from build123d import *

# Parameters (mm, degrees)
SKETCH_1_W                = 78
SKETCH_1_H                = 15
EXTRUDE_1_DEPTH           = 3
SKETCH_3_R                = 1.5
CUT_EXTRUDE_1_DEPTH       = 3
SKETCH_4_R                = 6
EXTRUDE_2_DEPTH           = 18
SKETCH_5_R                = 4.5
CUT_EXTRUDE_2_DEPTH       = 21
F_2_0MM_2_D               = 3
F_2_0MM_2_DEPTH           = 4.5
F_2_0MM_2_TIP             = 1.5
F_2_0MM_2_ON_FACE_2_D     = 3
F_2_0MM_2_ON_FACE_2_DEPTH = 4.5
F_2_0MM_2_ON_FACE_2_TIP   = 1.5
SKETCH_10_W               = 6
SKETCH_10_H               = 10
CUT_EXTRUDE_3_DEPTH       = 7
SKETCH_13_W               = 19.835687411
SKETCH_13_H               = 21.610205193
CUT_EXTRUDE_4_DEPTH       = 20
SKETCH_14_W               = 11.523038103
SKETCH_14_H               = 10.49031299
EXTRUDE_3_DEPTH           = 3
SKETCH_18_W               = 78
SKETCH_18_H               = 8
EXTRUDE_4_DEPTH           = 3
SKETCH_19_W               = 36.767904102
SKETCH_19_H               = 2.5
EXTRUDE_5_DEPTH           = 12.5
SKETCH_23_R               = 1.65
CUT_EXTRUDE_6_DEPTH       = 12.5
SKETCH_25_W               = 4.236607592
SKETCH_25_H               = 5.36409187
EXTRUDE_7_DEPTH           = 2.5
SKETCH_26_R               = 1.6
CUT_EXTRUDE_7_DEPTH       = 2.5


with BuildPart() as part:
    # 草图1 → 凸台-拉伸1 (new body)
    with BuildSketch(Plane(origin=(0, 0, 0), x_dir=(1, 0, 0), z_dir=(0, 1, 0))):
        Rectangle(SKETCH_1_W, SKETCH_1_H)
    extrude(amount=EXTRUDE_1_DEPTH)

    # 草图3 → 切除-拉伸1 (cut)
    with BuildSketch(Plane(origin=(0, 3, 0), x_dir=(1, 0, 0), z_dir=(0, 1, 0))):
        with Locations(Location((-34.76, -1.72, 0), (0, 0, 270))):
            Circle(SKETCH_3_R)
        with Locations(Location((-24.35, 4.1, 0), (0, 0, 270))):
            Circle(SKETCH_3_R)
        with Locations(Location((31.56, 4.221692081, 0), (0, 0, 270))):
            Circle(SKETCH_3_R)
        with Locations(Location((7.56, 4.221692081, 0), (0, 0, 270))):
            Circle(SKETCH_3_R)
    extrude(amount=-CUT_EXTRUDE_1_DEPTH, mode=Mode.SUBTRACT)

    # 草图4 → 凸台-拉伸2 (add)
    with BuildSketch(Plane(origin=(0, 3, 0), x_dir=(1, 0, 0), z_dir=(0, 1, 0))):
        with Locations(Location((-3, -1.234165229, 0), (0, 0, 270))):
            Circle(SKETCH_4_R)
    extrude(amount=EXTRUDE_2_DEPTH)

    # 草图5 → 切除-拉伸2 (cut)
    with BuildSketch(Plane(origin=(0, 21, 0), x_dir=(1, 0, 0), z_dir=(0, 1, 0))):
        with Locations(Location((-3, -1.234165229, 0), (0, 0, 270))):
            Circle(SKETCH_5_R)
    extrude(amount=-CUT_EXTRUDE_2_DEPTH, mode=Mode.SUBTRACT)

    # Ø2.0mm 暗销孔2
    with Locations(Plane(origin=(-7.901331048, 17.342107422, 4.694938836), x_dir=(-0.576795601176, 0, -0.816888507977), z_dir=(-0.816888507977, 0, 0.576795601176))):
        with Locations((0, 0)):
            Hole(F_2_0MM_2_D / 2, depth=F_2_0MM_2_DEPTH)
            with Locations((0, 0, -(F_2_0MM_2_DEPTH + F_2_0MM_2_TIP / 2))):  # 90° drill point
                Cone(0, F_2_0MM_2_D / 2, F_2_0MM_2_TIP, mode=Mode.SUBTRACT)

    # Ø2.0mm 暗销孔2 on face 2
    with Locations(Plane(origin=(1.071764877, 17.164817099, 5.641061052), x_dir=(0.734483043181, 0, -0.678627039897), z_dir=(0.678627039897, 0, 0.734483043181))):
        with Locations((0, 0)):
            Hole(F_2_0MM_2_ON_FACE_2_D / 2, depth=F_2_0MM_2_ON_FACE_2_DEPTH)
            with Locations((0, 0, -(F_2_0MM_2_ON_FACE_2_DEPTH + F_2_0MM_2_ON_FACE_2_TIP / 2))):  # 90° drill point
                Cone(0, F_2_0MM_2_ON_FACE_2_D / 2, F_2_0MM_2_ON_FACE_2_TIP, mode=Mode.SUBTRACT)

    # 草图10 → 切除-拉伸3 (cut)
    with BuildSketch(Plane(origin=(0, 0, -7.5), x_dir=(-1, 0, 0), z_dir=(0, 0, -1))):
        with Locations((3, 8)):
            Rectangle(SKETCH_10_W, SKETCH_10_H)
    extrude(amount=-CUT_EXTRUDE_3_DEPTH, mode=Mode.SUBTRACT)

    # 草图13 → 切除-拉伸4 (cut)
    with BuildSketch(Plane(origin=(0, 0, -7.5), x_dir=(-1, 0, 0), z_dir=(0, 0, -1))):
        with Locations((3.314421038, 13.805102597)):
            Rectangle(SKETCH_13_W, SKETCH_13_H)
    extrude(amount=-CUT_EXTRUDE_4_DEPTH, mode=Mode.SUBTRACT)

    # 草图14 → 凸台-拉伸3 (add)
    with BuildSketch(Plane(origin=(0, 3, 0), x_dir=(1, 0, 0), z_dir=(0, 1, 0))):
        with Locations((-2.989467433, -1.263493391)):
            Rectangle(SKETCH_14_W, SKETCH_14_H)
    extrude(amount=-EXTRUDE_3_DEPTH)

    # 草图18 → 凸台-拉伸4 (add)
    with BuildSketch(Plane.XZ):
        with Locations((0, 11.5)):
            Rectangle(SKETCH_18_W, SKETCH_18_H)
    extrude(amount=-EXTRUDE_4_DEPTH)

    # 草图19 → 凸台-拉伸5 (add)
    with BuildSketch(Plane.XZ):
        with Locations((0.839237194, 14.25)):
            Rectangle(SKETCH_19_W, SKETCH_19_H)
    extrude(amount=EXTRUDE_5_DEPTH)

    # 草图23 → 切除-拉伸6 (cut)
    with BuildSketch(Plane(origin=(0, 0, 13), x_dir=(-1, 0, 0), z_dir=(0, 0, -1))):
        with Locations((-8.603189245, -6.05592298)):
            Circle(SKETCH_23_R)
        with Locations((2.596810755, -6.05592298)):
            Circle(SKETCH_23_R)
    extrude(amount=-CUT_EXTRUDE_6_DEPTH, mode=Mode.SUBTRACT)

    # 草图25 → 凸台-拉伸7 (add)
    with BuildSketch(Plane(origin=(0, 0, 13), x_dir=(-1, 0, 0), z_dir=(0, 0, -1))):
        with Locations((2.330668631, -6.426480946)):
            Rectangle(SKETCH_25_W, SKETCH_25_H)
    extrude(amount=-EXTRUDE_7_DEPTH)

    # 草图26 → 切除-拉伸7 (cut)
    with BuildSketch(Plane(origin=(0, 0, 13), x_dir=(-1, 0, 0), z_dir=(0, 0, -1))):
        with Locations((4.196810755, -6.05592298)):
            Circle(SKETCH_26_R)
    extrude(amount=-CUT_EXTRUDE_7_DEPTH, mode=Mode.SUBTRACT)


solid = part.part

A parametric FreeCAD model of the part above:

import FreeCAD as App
import Part
import Sketcher

V = App.Vector


def add_polygon(sketch, points):
    """Adds a closed chain of lines whose ends are joined by coincident constraints."""
    first, n = sketch.GeometryCount, len(points)
    for a, b in zip(points, points[1:] + points[:1]):
        sketch.addGeometry(Part.LineSegment(App.Vector(*a, 0), App.Vector(*b, 0)), False)
    for i in range(n):
        sketch.addConstraint(Sketcher.Constraint("Coincident", first + i, 2, first + (i + 1) % n, 1))

doc = App.newDocument("Part")
body = doc.addObject("PartDesign::Body", "Body")

# Sketch on XZ plane
sketch1 = doc.addObject("Sketcher::SketchObject", "Sketch")
body.addObject(sketch1)
sketch1.AttachmentSupport = (doc.XZ_Plane, [""])
sketch1.MapMode = "FlatFace"
add_polygon(sketch1, [(-39, -7.5), (-39, 7.5), (39, 7.5), (39, -7.5)])  # lines 0-3
sketch1.addConstraint([
    Sketcher.Constraint("Vertical", 0),
    Sketcher.Constraint("Horizontal", 1),
    Sketcher.Constraint("Vertical", 2),
    Sketcher.Constraint("Horizontal", 3),
    Sketcher.Constraint("Symmetric", 0, 2, 2, 2, -1, 1),
    Sketcher.Constraint("DistanceX", 1, 1, 1, 2, 78.0),
    Sketcher.Constraint("DistanceY", 0, 1, 0, 2, 15.0),
])
pad1 = doc.addObject("PartDesign::Pad", "Pad")
body.addObject(pad1)
pad1.Profile = sketch1
pad1.Length = 3
pad1.Reversed = True

# Sketch on XZ plane
sketch2 = doc.addObject("Sketcher::SketchObject", "Sketch001")
body.addObject(sketch2)
sketch2.AttachmentSupport = (doc.XZ_Plane, [""])
sketch2.MapMode = "FlatFace"
sketch2.AttachmentOffset = App.Placement(V(0, 0, -3), App.Rotation())
sketch2.addGeometry([
    Part.Circle(V(-34.76, 1.72, 0), V(0, 0, 1), 1.5),
    Part.Circle(V(-24.35, -4.1, 0), V(0, 0, 1), 1.5),
    Part.Circle(V(31.56, -4.221692, 0), V(0, 0, 1), 1.5),
    Part.Circle(V(7.56, -4.221692, 0), V(0, 0, 1), 1.5),
], False)
sketch2.addConstraint([
    Sketcher.Constraint("Equal", 0, 1),
    Sketcher.Constraint("Equal", 1, 2),
    Sketcher.Constraint("Equal", 2, 3),
    Sketcher.Constraint("Horizontal", 2, 3, 3, 3),
    Sketcher.Constraint("Diameter", 0, 3.0),
    Sketcher.Constraint("DistanceX", 3, 3, 2, 3, 24.0),
    Sketcher.Constraint("DistanceY", 1, 3, -1, 1, 4.1),
    Sketcher.Constraint("DistanceX", 0, 3, -1, 1, 34.76),
    Sketcher.Constraint("DistanceY", -1, 1, 0, 3, 1.72),
    Sketcher.Constraint("DistanceX", 1, 3, -1, 1, 24.35),
    Sketcher.Constraint("DistanceX", -1, 1, 2, 3, 31.56),
    Sketcher.Constraint("DistanceY", 2, 3, -1, 1, 4.221692),
])
pocket1 = doc.addObject("PartDesign::Pocket", "Pocket")
body.addObject(pocket1)
pocket1.Profile = sketch2
pocket1.Length = 3
pocket1.Reversed = True

# Sketch on XZ plane
sketch3 = doc.addObject("Sketcher::SketchObject", "Sketch002")
body.addObject(sketch3)
sketch3.AttachmentSupport = (doc.XZ_Plane, [""])
sketch3.MapMode = "FlatFace"
sketch3.AttachmentOffset = App.Placement(V(0, 0, -3), App.Rotation())
sketch3.addGeometry(Part.Circle(V(-3, 1.234165, 0), V(0, 0, 1), 6), False)
sketch3.addConstraint([
    Sketcher.Constraint("Diameter", 0, 12.0),
    Sketcher.Constraint("DistanceX", 0, 3, -1, 1, 3.0),
    Sketcher.Constraint("DistanceY", -1, 1, 0, 3, 1.234165),
])
pad2 = doc.addObject("PartDesign::Pad", "Pad001")
body.addObject(pad2)
pad2.Profile = sketch3
pad2.Length = 18
pad2.Reversed = True

# Sketch on XZ plane
sketch4 = doc.addObject("Sketcher::SketchObject", "Sketch003")
body.addObject(sketch4)
sketch4.AttachmentSupport = (doc.XZ_Plane, [""])
sketch4.MapMode = "FlatFace"
sketch4.AttachmentOffset = App.Placement(V(0, 0, -21), App.Rotation())
sketch4.addGeometry(Part.Circle(V(-3, 1.234165, 0), V(0, 0, 1), 4.5), False)
sketch4.addConstraint([
    Sketcher.Constraint("Diameter", 0, 9.0),
    Sketcher.Constraint("DistanceX", 0, 3, -1, 1, 3.0),
    Sketcher.Constraint("DistanceY", -1, 1, 0, 3, 1.234165),
])
pocket2 = doc.addObject("PartDesign::Pocket", "Pocket001")
body.addObject(pocket2)
pocket2.Profile = sketch4
pocket2.Length = 21
pocket2.Reversed = True

# Sketch on an angled plane
sketch5 = doc.addObject("Sketcher::SketchObject", "Sketch004")
body.addObject(sketch5)
sketch5.Placement = App.Placement(V(-7.484763, 0, 5.284905), App.Rotation(V(-0.576795601, 0, -0.816888508), V(0, -1, 0), V(-0.816888508, 0, 0.576795601), "ZXY"))
sketch5.addGeometry(Part.Circle(V(0.722211, -17.342107, 0), V(0, 0, 1), 1.5), False)
sketch5.addConstraint([
    Sketcher.Constraint("Diameter", 0, 3.0),
    Sketcher.Constraint("DistanceX", -1, 1, 0, 3, 0.722211),
    Sketcher.Constraint("DistanceY", 0, 3, -1, 1, 17.342107),
])
doc.recompute()
hole = doc.addObject("PartDesign::Hole", "Hole")
body.addObject(hole)
hole.Profile = sketch5
hole.ThreadType = "None"
hole.Diameter = 3
hole.DepthType = "Dimension"
hole.Depth = 4.5
hole.DrillPoint = "Angled"
hole.DrillPointAngle = 90

# Sketch on an angled plane
sketch6 = doc.addObject("Sketcher::SketchObject", "Sketch005")
body.addObject(sketch6)
sketch6.Placement = App.Placement(V(3.305316, 0, 3.577367), App.Rotation(V(0.734483043, 0, -0.67862704), V(0, 1, 0), V(0.67862704, 0, 0.734483043), "ZXY"))
sketch6.addGeometry(Part.Circle(V(-3.040983, 17.164817, 0), V(0, 0, 1), 1.5), False)
sketch6.addConstraint([
    Sketcher.Constraint("Diameter", 0, 3.0),
    Sketcher.Constraint("DistanceX", 0, 3, -1, 1, 3.040983),
    Sketcher.Constraint("DistanceY", -1, 1, 0, 3, 17.164817),
])
doc.recompute()
hole2 = doc.addObject("PartDesign::Hole", "Hole001")
body.addObject(hole2)
hole2.Profile = sketch6
hole2.ThreadType = "None"
hole2.Diameter = 3
hole2.DepthType = "Dimension"
hole2.Depth = 4.5
hole2.DrillPoint = "Angled"
hole2.DrillPointAngle = 90

# Sketch on XY plane
sketch7 = doc.addObject("Sketcher::SketchObject", "Sketch006")
body.addObject(sketch7)
sketch7.AttachmentSupport = (doc.XY_Plane, [""])
sketch7.MapMode = "FlatFace"
sketch7.AttachmentOffset = App.Placement(V(0, 0, -7.5), App.Rotation())
add_polygon(sketch7, [(0, 13), (0, 3), (-6, 3), (-6, 13)])  # lines 0-3
sketch7.addConstraint([
    Sketcher.Constraint("Vertical", 0),
    Sketcher.Constraint("Horizontal", 1),
    Sketcher.Constraint("Vertical", 2),
    Sketcher.Constraint("Horizontal", 3),
    Sketcher.Constraint("PointOnObject", 0, 2, -2),
    Sketcher.Constraint("DistanceX", 1, 2, 1, 1, 6.0),
    Sketcher.Constraint("DistanceY", 0, 2, 0, 1, 10.0),
    Sketcher.Constraint("DistanceY", -1, 1, 0, 2, 3.0),
])
pocket3 = doc.addObject("PartDesign::Pocket", "Pocket002")
body.addObject(pocket3)
pocket3.Profile = sketch7
pocket3.Length = 7
pocket3.Reversed = True

# Sketch on XY plane
sketch8 = doc.addObject("Sketcher::SketchObject", "Sketch007")
body.addObject(sketch8)
sketch8.AttachmentSupport = (doc.XY_Plane, [""])
sketch8.MapMode = "FlatFace"
sketch8.AttachmentOffset = App.Placement(V(0, 0, -7.5), App.Rotation())
add_polygon(sketch8, [(6.603423, 24.610205), (6.603423, 3), (-13.232265, 3), (-13.232265, 24.610205)])  # lines 0-3
sketch8.addConstraint([
    Sketcher.Constraint("Vertical", 0),
    Sketcher.Constraint("Horizontal", 1),
    Sketcher.Constraint("Vertical", 2),
    Sketcher.Constraint("Horizontal", 3),
    Sketcher.Constraint("DistanceY", -1, 1, 0, 2, 3.0),
    Sketcher.Constraint("DistanceX", 1, 2, 1, 1, 19.835687),
    Sketcher.Constraint("DistanceY", 0, 2, 0, 1, 21.610205),
    Sketcher.Constraint("DistanceX", -1, 1, 0, 2, 6.603423),
])
pocket4 = doc.addObject("PartDesign::Pocket", "Pocket003")
body.addObject(pocket4)
pocket4.Profile = sketch8
pocket4.Length = 20
pocket4.Reversed = True

# Sketch on XZ plane
sketch9 = doc.addObject("Sketcher::SketchObject", "Sketch008")
body.addObject(sketch9)
sketch9.AttachmentSupport = (doc.XZ_Plane, [""])
sketch9.MapMode = "FlatFace"
sketch9.AttachmentOffset = App.Placement(V(0, 0, -3), App.Rotation())
add_polygon(sketch9, [(-8.750986, -3.981663), (-8.750986, 6.50865), (2.772052, 6.50865), (2.772052, -3.981663)])  # lines 0-3
sketch9.addConstraint([
    Sketcher.Constraint("Vertical", 0),
    Sketcher.Constraint("Horizontal", 1),
    Sketcher.Constraint("Vertical", 2),
    Sketcher.Constraint("Horizontal", 3),
    Sketcher.Constraint("DistanceX", 1, 1, 1, 2, 11.523038),
    Sketcher.Constraint("DistanceY", 0, 1, 0, 2, 10.490313),
    Sketcher.Constraint("DistanceY", -1, 1, 0, 2, 6.50865),
    Sketcher.Constraint("DistanceX", -1, 1, 1, 2, 2.772052),
])
pad3 = doc.addObject("PartDesign::Pad", "Pad002")
body.addObject(pad3)
pad3.Profile = sketch9
pad3.Length = 3

# Sketch on XZ plane
sketch10 = doc.addObject("Sketcher::SketchObject", "Sketch009")
body.addObject(sketch10)
sketch10.AttachmentSupport = (doc.XZ_Plane, [""])
sketch10.MapMode = "FlatFace"
add_polygon(sketch10, [(-39, 15.5), (-39, 7.5), (39, 7.5), (39, 15.5)])  # lines 0-3
sketch10.addConstraint([
    Sketcher.Constraint("Vertical", 0),
    Sketcher.Constraint("Horizontal", 1),
    Sketcher.Constraint("Vertical", 2),
    Sketcher.Constraint("Horizontal", 3),
    Sketcher.Constraint("DistanceX", 1, 1, 1, 2, 78.0),
    Sketcher.Constraint("DistanceY", 0, 2, 0, 1, 8.0),
    Sketcher.Constraint("DistanceX", 0, 2, -1, 1, 39.0),
    Sketcher.Constraint("DistanceY", -1, 1, 0, 2, 7.5),
])
pad4 = doc.addObject("PartDesign::Pad", "Pad003")
body.addObject(pad4)
pad4.Profile = sketch10
pad4.Length = 3
pad4.Reversed = True

# Sketch on XZ plane
sketch11 = doc.addObject("Sketcher::SketchObject", "Sketch010")
body.addObject(sketch11)
sketch11.AttachmentSupport = (doc.XZ_Plane, [""])
sketch11.MapMode = "FlatFace"
add_polygon(sketch11, [(-17.544715, 15.5), (-17.544715, 13), (19.223189, 13), (19.223189, 15.5)])  # lines 0-3
sketch11.addConstraint([
    Sketcher.Constraint("Vertical", 0),
    Sketcher.Constraint("Horizontal", 1),
    Sketcher.Constraint("Vertical", 2),
    Sketcher.Constraint("Horizontal", 3),
    Sketcher.Constraint("DistanceY", 0, 2, 0, 1, 2.5),
    Sketcher.Constraint("DistanceY", -1, 1, 0, 2, 13.0),
    Sketcher.Constraint("DistanceX", 1, 1, 1, 2, 36.767904),
    Sketcher.Constraint("DistanceX", -1, 1, 1, 2, 19.223189),
])
pad5 = doc.addObject("PartDesign::Pad", "Pad004")
body.addObject(pad5)
pad5.Profile = sketch11
pad5.Length = 12.5

# Sketch on XY plane
sketch12 = doc.addObject("Sketcher::SketchObject", "Sketch011")
body.addObject(sketch12)
sketch12.AttachmentSupport = (doc.XY_Plane, [""])
sketch12.MapMode = "FlatFace"
sketch12.AttachmentOffset = App.Placement(V(0, 0, 13), App.Rotation())
sketch12.addGeometry([
    Part.Circle(V(8.603189, -6.055923, 0), V(0, 0, 1), 1.65),
    Part.Circle(V(-2.596811, -6.055923, 0), V(0, 0, 1), 1.65),
], False)
sketch12.addConstraint([
    Sketcher.Constraint("Equal", 0, 1),
    Sketcher.Constraint("Horizontal", 0, 3, 1, 3),
    Sketcher.Constraint("Diameter", 0, 3.3),
    Sketcher.Constraint("DistanceX", 1, 3, 0, 3, 11.2),
    Sketcher.Constraint("DistanceX", -1, 1, 0, 3, 8.603189),
    Sketcher.Constraint("DistanceY", 0, 3, -1, 1, 6.055923),
])
pocket5 = doc.addObject("PartDesign::Pocket", "Pocket004")
body.addObject(pocket5)
pocket5.Profile = sketch12
pocket5.Length = 12.5
pocket5.Reversed = True

# Sketch on XY plane
sketch13 = doc.addObject("Sketcher::SketchObject", "Sketch012")
body.addObject(sketch13)
sketch13.AttachmentSupport = (doc.XY_Plane, [""])
sketch13.MapMode = "FlatFace"
sketch13.AttachmentOffset = App.Placement(V(0, 0, 13), App.Rotation())
add_polygon(sketch13, [(-0.212365, -3.744435), (-0.212365, -9.108527), (-4.448972, -9.108527), (-4.448972, -3.744435)])  # lines 0-3
sketch13.addConstraint([
    Sketcher.Constraint("Vertical", 0),
    Sketcher.Constraint("Horizontal", 1),
    Sketcher.Constraint("Vertical", 2),
    Sketcher.Constraint("Horizontal", 3),
    Sketcher.Constraint("DistanceY", 0, 2, 0, 1, 5.364092),
    Sketcher.Constraint("DistanceX", 1, 2, 1, 1, 4.236608),
    Sketcher.Constraint("DistanceX", 0, 2, -1, 1, 0.212365),
    Sketcher.Constraint("DistanceY", 0, 2, -1, 1, 9.108527),
])
pad6 = doc.addObject("PartDesign::Pad", "Pad005")
body.addObject(pad6)
pad6.Profile = sketch13
pad6.Length = 2.5

# Sketch on XY plane
sketch14 = doc.addObject("Sketcher::SketchObject", "Sketch013")
body.addObject(sketch14)
sketch14.AttachmentSupport = (doc.XY_Plane, [""])
sketch14.MapMode = "FlatFace"
sketch14.AttachmentOffset = App.Placement(V(0, 0, 13), App.Rotation())
sketch14.addGeometry(Part.Circle(V(-4.196811, -6.055923, 0), V(0, 0, 1), 1.6), False)
sketch14.addConstraint([
    Sketcher.Constraint("Diameter", 0, 3.2),
    Sketcher.Constraint("DistanceX", 0, 3, -1, 1, 4.196811),
    Sketcher.Constraint("DistanceY", 0, 3, -1, 1, 6.055923),
])
pocket6 = doc.addObject("PartDesign::Pocket", "Pocket005")
body.addObject(pocket6)
pocket6.Profile = sketch14
pocket6.Length = 2.5
pocket6.Reversed = True

doc.recompute()
